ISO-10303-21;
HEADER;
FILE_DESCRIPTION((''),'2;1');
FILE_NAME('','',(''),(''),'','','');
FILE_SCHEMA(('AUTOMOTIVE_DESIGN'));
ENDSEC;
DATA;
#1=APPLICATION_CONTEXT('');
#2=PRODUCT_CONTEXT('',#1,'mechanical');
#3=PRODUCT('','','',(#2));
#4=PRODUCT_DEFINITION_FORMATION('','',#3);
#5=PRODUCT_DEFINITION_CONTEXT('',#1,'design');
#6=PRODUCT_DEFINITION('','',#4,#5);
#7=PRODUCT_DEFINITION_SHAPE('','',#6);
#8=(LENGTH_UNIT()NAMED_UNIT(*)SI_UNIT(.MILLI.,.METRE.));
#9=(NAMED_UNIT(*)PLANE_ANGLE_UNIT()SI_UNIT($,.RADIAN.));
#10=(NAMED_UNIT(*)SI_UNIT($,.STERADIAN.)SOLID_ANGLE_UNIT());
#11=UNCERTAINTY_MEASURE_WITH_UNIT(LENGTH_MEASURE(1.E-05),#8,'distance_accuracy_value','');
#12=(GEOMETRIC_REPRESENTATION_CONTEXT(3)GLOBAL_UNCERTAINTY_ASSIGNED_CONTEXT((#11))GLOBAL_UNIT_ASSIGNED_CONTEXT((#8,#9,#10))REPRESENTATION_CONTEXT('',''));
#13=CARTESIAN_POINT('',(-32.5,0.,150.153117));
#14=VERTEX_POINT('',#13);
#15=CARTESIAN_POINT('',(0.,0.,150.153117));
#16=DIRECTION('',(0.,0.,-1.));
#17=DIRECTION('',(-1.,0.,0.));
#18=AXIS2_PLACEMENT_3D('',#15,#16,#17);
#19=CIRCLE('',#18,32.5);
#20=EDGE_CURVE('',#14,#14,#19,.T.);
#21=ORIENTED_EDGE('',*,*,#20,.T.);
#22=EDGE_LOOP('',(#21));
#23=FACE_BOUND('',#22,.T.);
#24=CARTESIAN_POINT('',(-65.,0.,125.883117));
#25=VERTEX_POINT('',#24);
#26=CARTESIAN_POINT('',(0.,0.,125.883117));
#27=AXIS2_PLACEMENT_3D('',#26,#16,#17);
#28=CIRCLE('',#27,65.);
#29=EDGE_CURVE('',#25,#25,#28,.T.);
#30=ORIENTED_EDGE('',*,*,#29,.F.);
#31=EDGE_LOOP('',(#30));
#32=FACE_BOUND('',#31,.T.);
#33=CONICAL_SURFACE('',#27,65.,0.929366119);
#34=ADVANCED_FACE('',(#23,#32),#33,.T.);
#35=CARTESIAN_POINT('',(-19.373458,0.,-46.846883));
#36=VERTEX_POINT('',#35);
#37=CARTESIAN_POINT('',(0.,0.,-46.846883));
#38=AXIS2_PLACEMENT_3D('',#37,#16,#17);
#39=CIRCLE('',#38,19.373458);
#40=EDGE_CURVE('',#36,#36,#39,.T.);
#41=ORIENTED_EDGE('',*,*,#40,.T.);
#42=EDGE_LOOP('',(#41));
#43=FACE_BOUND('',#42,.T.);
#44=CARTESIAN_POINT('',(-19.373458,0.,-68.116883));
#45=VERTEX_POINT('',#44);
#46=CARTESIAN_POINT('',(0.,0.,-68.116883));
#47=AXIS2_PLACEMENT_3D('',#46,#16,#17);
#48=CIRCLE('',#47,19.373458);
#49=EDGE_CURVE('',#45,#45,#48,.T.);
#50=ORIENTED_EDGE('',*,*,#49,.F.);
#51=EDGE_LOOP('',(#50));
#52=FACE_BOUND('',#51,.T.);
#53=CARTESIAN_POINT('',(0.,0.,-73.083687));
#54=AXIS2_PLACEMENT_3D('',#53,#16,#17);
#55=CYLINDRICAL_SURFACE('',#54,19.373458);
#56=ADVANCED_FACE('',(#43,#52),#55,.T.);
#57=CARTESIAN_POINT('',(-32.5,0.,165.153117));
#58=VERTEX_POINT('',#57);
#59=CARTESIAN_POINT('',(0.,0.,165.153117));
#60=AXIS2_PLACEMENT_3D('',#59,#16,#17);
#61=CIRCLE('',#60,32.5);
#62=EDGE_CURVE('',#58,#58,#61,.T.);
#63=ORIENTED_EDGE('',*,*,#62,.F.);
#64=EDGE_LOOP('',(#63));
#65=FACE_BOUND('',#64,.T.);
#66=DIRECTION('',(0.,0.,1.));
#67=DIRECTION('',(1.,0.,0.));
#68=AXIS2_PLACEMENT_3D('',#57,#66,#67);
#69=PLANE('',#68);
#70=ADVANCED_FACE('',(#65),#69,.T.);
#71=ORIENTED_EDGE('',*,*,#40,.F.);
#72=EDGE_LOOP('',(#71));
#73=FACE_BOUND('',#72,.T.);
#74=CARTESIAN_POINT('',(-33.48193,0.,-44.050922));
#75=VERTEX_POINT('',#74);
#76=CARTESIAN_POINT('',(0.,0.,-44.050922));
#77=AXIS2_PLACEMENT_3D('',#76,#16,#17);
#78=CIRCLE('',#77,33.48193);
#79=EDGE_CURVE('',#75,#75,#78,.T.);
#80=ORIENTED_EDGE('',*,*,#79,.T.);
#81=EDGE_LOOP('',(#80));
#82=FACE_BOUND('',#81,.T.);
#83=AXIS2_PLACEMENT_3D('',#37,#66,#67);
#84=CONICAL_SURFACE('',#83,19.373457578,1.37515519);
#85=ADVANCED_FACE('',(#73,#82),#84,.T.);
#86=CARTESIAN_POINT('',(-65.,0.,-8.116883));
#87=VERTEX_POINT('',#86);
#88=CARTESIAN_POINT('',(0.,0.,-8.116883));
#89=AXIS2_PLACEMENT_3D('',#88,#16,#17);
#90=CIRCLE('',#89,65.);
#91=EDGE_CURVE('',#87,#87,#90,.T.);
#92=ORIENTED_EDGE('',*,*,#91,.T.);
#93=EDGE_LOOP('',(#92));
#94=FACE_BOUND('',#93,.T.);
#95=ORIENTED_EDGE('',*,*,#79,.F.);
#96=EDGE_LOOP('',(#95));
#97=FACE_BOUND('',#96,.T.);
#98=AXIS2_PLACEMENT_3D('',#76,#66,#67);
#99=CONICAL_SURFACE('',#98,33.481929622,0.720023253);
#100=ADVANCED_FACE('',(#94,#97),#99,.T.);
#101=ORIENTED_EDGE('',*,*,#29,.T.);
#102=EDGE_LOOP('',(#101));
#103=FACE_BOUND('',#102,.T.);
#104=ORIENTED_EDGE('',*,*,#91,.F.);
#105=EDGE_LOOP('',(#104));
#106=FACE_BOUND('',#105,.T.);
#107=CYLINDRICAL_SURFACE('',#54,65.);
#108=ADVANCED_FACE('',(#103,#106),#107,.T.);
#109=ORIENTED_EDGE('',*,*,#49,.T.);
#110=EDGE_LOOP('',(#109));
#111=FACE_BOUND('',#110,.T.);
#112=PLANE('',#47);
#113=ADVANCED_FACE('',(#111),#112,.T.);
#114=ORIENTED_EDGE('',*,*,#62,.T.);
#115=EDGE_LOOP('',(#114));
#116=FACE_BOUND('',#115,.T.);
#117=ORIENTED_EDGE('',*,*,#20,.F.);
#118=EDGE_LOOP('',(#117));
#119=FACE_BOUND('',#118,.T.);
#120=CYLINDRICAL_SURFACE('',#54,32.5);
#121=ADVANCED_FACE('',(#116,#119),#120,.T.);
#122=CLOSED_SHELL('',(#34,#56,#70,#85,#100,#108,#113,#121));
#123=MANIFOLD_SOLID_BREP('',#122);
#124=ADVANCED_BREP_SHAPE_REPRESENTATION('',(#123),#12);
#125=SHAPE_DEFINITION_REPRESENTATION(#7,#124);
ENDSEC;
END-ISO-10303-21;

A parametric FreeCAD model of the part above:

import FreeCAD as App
import Part
import Sketcher
Q = App.Units.Quantity


def add_polygon(sketch, points):
    """Adds a closed chain of lines whose ends are joined by coincident constraints."""
    first, n = sketch.GeometryCount, len(points)
    for a, b in zip(points, points[1:] + points[:1]):
        sketch.addGeometry(Part.LineSegment(App.Vector(*a, 0), App.Vector(*b, 0)), False)
    for i in range(n):
        sketch.addConstraint(Sketcher.Constraint("Coincident", first + i, 2, first + (i + 1) % n, 1))

doc = App.newDocument("Part")
body = doc.addObject("PartDesign::Body", "Body")

sketch1 = doc.addObject("Sketcher::SketchObject", "Sketch")
body.addObject(sketch1)
sketch1.AttachmentSupport = (doc.XZ_Plane, [""])
sketch1.MapMode = "FlatFace"
add_polygon(sketch1, [(-33, -44), (-65, -8), (-65, 126), (-32, 150), (-32, 165), (0, 165), (0, -68), (-19, -68), (-19, -47)])
sketch1.addConstraint(Sketcher.Constraint("Vertical", 1))
sketch1.addConstraint(Sketcher.Constraint("Vertical", 3))
sketch1.addConstraint(Sketcher.Constraint("Horizontal", 4))
sketch1.addConstraint(Sketcher.Constraint("Vertical", 5))
sketch1.addConstraint(Sketcher.Constraint("Horizontal", 6))
sketch1.addConstraint(Sketcher.Constraint("Vertical", 7))
sketch1.addConstraint(Sketcher.Constraint("PointOnObject", 4, 2, -2))
sketch1.addConstraint(Sketcher.Constraint("DistanceY", 1, 1, 1, 2, Q("134 mm")))
sketch1.addConstraint(Sketcher.Constraint("DistanceY", 3, 1, 3, 2, Q("15 mm")))
sketch1.addConstraint(Sketcher.Constraint("DistanceX", 4, 1, 4, 2, Q("32.5 mm")))
sketch1.addConstraint(Sketcher.Constraint("DistanceX", 0, 2, -1, 1, Q("65 mm")))
sketch1.addConstraint(Sketcher.Constraint("DistanceY", 5, 2, 0, 2, Q("60 mm")))
sketch1.addConstraint(Sketcher.Constraint("DistanceY", 7, 2, 2, 2, Q("197 mm")))
sketch1.addConstraint(Sketcher.Constraint("DistanceY", 5, 2, 5, 1, Q("233.27 mm")))
sketch1.addConstraint(Sketcher.Constraint("Distance", 0, Q("47.797949 mm")))
sketch1.addConstraint(Sketcher.Constraint("Distance", 8, Q("14.38285 mm")))
sketch1.addConstraint(Sketcher.Constraint("DistanceX", 6, 2, 6, 1, Q("19.373458 mm")))
sketch1.addConstraint(Sketcher.Constraint("DistanceY", 0, 2, -1, 1, Q("8.116883 mm")))
revolution = doc.addObject("PartDesign::Revolution", "Revolution")
body.addObject(revolution)
revolution.Profile = sketch1
revolution.ReferenceAxis = (sketch1, ["V_Axis"])
revolution.Angle = 360

doc.recompute()
